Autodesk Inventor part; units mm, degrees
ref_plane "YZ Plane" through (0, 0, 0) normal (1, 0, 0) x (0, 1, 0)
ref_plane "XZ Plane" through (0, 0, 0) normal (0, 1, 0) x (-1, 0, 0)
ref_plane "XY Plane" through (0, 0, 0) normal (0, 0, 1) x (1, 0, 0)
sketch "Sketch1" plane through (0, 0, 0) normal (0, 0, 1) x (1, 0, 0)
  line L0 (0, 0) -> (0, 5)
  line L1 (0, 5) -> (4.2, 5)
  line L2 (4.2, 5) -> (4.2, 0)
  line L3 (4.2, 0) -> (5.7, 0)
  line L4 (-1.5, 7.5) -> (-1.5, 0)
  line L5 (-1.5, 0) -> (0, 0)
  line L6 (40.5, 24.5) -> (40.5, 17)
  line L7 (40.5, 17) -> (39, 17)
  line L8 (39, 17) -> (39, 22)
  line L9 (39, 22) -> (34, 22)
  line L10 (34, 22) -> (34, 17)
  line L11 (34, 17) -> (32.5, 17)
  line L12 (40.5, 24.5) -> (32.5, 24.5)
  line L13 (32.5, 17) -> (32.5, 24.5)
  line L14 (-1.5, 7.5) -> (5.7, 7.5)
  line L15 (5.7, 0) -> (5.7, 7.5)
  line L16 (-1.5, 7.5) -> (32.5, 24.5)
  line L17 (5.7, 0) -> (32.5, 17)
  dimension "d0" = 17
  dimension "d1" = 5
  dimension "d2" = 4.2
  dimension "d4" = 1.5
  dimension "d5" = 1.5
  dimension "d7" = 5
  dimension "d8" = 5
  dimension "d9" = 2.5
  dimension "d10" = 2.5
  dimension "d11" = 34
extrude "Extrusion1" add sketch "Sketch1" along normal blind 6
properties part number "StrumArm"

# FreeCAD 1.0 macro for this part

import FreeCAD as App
import Part
import Sketcher

V = App.Vector
Q = App.Units.Quantity


def add_polygon(sketch, points):
    """Adds a closed chain of lines whose ends are joined by coincident constraints."""
    first, n = sketch.GeometryCount, len(points)
    for a, b in zip(points, points[1:] + points[:1]):
        sketch.addGeometry(Part.LineSegment(App.Vector(*a, 0), App.Vector(*b, 0)), False)
    for i in range(n):
        sketch.addConstraint(Sketcher.Constraint("Coincident", first + i, 2, first + (i + 1) % n, 1))

doc = App.newDocument("Part")
body = doc.addObject("PartDesign::Body", "Body")

# Sketch on XY plane
sketch1 = doc.addObject("Sketcher::SketchObject", "Sketch")
body.addObject(sketch1)
sketch1.AttachmentSupport = (doc.XY_Plane, [""])
sketch1.MapMode = "FlatFace"
add_polygon(sketch1, [(-1.5, 0), (0, 0), (0, 5), (4.2, 5), (4.2, 0), (5.7, 0), (32.5, 17), (34, 17), (34, 22), (39, 22), (39, 17), (40.5, 17), (40.5, 24.5), (32.5, 24.5), (-1.5, 7.5)])  # lines 0-14
sketch1.addConstraint([
    Sketcher.Constraint("Horizontal", 0),
    Sketcher.Constraint("Vertical", 1),
    Sketcher.Constraint("Horizontal", 2),
    Sketcher.Constraint("Vertical", 3),
    Sketcher.Constraint("Horizontal", 4),
    Sketcher.Constraint("Horizontal", 6),
    Sketcher.Constraint("Vertical", 7),
    Sketcher.Constraint("Horizontal", 8),
    Sketcher.Constraint("Vertical", 9),
    Sketcher.Constraint("Horizontal", 10),
    Sketcher.Constraint("Vertical", 11),
    Sketcher.Constraint("Horizontal", 12),
    Sketcher.Constraint("Vertical", 14),
    Sketcher.Constraint("Coincident", 0, 2, -1, 1),
    Sketcher.Constraint("PointOnObject", 3, 2, -1),
    Sketcher.Constraint("Horizontal", 6, 2, 9, 2),
    Sketcher.Constraint("Vertical", 5, 2, 12, 2),
    Sketcher.Constraint("Equal", 0, 4),
    Sketcher.Constraint("Equal", 4, 6),
    Sketcher.Constraint("Equal", 6, 10),
    Sketcher.Constraint("Equal", 8, 1),
    Sketcher.Constraint("Equal", 3, 7),
    Sketcher.Constraint("Equal", 11, 14),
    Sketcher.Constraint("DistanceX", 8, 1, 8, 2, Q("5 mm")),
    Sketcher.Constraint("DistanceX", 0, 1, 0, 2, Q("1.5 mm")),
    Sketcher.Constraint("DistanceX", 2, 1, 2, 2, Q("4.2 mm")),
    Sketcher.Constraint("DistanceY", -1, 1, 5, 2, Q("17 mm")),
    Sketcher.Constraint("DistanceX", -1, 1, 6, 2, Q("34 mm")),
    Sketcher.Constraint("DistanceY", 8, 2, 11, 2, Q("2.5 mm")),
])
pad1 = doc.addObject("PartDesign::Pad", "Pad")
body.addObject(pad1)
pad1.Profile = sketch1
pad1.Length = 6

doc.recompute()
